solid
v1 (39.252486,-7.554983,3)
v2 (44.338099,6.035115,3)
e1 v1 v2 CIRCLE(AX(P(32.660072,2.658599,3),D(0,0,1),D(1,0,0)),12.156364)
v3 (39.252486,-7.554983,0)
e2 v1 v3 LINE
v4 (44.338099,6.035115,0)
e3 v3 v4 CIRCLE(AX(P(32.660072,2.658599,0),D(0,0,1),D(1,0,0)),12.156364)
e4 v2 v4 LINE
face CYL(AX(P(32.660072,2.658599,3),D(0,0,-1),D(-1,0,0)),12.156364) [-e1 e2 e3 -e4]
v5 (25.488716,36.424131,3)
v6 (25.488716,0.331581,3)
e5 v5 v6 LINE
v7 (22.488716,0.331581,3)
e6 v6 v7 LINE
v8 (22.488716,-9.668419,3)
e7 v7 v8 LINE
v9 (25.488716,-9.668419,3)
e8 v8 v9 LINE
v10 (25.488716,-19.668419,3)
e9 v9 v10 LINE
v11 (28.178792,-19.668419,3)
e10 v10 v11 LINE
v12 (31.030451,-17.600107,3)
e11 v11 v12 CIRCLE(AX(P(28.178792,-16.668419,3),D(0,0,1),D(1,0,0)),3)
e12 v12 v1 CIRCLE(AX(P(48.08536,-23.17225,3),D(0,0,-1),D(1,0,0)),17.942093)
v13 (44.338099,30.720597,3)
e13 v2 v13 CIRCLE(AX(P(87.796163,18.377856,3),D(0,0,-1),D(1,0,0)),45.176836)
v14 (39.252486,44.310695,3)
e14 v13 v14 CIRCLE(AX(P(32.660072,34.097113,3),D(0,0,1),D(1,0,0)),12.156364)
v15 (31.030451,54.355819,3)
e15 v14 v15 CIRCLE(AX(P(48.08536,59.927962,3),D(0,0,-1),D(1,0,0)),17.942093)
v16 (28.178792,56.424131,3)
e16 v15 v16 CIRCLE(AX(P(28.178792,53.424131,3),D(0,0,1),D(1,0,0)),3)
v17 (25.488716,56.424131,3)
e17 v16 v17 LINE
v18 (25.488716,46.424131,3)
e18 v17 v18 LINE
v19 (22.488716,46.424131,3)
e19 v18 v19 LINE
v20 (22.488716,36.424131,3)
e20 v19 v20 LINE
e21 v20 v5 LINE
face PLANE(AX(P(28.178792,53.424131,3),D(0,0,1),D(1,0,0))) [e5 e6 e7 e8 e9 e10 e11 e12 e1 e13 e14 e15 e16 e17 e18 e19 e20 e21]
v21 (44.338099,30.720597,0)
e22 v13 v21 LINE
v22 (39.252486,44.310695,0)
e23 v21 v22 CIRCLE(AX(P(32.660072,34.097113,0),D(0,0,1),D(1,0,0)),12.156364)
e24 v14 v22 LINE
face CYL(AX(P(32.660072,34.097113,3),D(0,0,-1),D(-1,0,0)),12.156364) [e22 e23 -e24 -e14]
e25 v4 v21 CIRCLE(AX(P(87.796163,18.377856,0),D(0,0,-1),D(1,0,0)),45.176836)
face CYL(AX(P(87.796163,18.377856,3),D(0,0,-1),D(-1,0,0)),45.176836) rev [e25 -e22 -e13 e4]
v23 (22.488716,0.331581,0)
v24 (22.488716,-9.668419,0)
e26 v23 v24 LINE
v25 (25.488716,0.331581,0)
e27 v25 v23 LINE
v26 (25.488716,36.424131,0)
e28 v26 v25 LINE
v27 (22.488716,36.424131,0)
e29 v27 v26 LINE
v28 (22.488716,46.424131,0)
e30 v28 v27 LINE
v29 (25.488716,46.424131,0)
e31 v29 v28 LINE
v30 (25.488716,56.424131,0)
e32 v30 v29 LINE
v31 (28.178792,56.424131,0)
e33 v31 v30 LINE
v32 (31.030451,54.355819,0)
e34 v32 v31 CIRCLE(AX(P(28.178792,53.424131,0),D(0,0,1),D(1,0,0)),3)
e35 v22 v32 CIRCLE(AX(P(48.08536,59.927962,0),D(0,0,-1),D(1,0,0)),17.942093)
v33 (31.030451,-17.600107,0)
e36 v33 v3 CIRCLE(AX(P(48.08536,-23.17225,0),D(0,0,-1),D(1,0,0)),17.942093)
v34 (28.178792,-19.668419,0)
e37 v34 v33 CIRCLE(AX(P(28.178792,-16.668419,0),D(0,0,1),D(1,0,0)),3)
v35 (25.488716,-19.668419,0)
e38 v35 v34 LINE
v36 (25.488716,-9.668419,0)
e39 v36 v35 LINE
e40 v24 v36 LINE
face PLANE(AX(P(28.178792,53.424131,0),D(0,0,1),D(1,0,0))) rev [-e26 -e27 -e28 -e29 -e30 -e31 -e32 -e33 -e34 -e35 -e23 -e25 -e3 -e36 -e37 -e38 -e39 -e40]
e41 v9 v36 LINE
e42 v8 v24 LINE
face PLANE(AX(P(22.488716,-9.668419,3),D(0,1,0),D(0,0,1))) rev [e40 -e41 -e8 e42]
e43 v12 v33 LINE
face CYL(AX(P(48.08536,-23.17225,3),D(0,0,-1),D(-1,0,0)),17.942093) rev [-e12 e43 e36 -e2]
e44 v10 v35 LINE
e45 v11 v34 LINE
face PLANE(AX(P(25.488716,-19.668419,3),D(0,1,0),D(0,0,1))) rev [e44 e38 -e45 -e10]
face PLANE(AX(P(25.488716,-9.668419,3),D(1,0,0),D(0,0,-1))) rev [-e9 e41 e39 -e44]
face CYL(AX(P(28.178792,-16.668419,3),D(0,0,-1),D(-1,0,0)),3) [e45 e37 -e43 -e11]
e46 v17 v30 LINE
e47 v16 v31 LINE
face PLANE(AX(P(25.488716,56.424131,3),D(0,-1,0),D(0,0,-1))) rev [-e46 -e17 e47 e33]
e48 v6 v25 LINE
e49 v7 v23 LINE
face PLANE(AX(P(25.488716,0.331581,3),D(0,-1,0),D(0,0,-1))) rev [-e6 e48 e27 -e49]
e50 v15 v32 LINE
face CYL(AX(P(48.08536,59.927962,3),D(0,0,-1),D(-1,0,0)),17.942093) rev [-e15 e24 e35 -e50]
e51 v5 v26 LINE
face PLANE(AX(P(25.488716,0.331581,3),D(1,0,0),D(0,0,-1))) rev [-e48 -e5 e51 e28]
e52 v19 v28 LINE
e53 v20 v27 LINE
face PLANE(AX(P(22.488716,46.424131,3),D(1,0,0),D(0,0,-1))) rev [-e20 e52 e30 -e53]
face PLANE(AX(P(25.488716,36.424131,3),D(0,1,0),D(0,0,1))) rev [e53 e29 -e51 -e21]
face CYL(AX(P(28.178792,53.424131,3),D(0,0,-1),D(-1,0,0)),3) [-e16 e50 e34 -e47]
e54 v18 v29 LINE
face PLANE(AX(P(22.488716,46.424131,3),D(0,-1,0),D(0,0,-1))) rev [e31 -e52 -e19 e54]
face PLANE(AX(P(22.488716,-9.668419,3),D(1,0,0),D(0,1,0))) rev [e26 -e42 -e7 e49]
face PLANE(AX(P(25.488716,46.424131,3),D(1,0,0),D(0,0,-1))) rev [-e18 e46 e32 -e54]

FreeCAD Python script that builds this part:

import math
import FreeCAD as App
import Part
import Sketcher
Q = App.Units.Quantity

doc = App.newDocument("Part")
body = doc.addObject("PartDesign::Body", "Body")

# Sketch on XY plane
sketch1 = body.newObject("Sketcher::SketchObject", "Sketch")
sketch1.AttachmentSupport = (doc.getObject("XY_Plane"), [""])
sketch1.MapMode = "FlatFace"
sketch1.addGeometry(Part.LineSegment(App.Vector(28.2, 56.4, 0), App.Vector(25.5, 56.4, 0)), False)
sketch1.addGeometry(Part.LineSegment(App.Vector(25.5, 56.4, 0), App.Vector(25.5, 46.4, 0)), False)
sketch1.addGeometry(Part.LineSegment(App.Vector(25.5, 46.4, 0), App.Vector(22.5, 46.4, 0)), False)
sketch1.addGeometry(Part.LineSegment(App.Vector(22.5, 46.4, 0), App.Vector(22.5, 36.4, 0)), False)
sketch1.addGeometry(Part.LineSegment(App.Vector(22.5, 36.4, 0), App.Vector(25.5, 36.4, 0)), False)
sketch1.addGeometry(Part.LineSegment(App.Vector(25.5, 36.4, 0), App.Vector(25.5, 0.3, 0)), False)
sketch1.addGeometry(Part.LineSegment(App.Vector(25.5, 0.3, 0), App.Vector(22.5, 0.3, 0)), False)
sketch1.addGeometry(Part.LineSegment(App.Vector(22.5, 0.3, 0), App.Vector(22.5, -9.7, 0)), False)
sketch1.addGeometry(Part.LineSegment(App.Vector(22.5, -9.7, 0), App.Vector(25.5, -9.7, 0)), False)
sketch1.addGeometry(Part.LineSegment(App.Vector(25.5, -9.7, 0), App.Vector(25.5, -19.7, 0)), False)
sketch1.addGeometry(Part.LineSegment(App.Vector(25.5, -19.7, 0), App.Vector(28.2, -19.7, 0)), False)
sketch1.addGeometry(Part.ArcOfCircle(Part.Circle(App.Vector(28.2, -16.7, 0), App.Vector(0, 0, 1), 3), math.radians(-90), math.radians(-18)), False)
sketch1.addGeometry(Part.ArcOfCircle(Part.Circle(App.Vector(48.1, -23.2, 0), App.Vector(0, 0, 1), 17.9), math.radians(119), math.radians(162)), False)
sketch1.addGeometry(Part.ArcOfCircle(Part.Circle(App.Vector(32.7, 2.7, 0), App.Vector(0, 0, 1), 12.2), math.radians(-57), math.radians(16)), False)
sketch1.addGeometry(Part.ArcOfCircle(Part.Circle(App.Vector(87.8, 18.4, 0), App.Vector(0, 0, 1), 45.2), math.radians(164), math.radians(196)), False)
sketch1.addGeometry(Part.ArcOfCircle(Part.Circle(App.Vector(32.7, 34.1, 0), App.Vector(0, 0, 1), 12.2), math.radians(-16), math.radians(57)), False)
sketch1.addGeometry(Part.ArcOfCircle(Part.Circle(App.Vector(48.1, 59.9, 0), App.Vector(0, 0, 1), 17.9), math.radians(-162), math.radians(-119)), False)
sketch1.addGeometry(Part.ArcOfCircle(Part.Circle(App.Vector(28.2, 53.4, 0), App.Vector(0, 0, 1), 3), math.radians(18), math.radians(90)), False)
sketch1.addConstraint(Sketcher.Constraint("Coincident", 0, 2, 1, 1))
sketch1.addConstraint(Sketcher.Constraint("Coincident", 1, 2, 2, 1))
sketch1.addConstraint(Sketcher.Constraint("Coincident", 2, 2, 3, 1))
sketch1.addConstraint(Sketcher.Constraint("Coincident", 3, 2, 4, 1))
sketch1.addConstraint(Sketcher.Constraint("Coincident", 4, 2, 5, 1))
sketch1.addConstraint(Sketcher.Constraint("Coincident", 5, 2, 6, 1))
sketch1.addConstraint(Sketcher.Constraint("Coincident", 6, 2, 7, 1))
sketch1.addConstraint(Sketcher.Constraint("Coincident", 7, 2, 8, 1))
sketch1.addConstraint(Sketcher.Constraint("Coincident", 8, 2, 9, 1))
sketch1.addConstraint(Sketcher.Constraint("Coincident", 9, 2, 10, 1))
sketch1.addConstraint(Sketcher.Constraint("Tangent", 10, 2, 11, 1))
sketch1.addConstraint(Sketcher.Constraint("Tangent", 11, 2, 12, 2))
sketch1.addConstraint(Sketcher.Constraint("Coincident", 12, 1, 13, 1))
sketch1.addConstraint(Sketcher.Constraint("Coincident", 13, 2, 14, 2))
sketch1.addConstraint(Sketcher.Constraint("Coincident", 14, 1, 15, 1))
sketch1.addConstraint(Sketcher.Constraint("Coincident", 15, 2, 16, 2))
sketch1.addConstraint(Sketcher.Constraint("Tangent", 16, 1, 17, 1))
sketch1.addConstraint(Sketcher.Constraint("Tangent", 17, 2, 0, 1))
sketch1.addConstraint(Sketcher.Constraint("Horizontal", 0))
sketch1.addConstraint(Sketcher.Constraint("Vertical", 1))
sketch1.addConstraint(Sketcher.Constraint("Horizontal", 2))
sketch1.addConstraint(Sketcher.Constraint("Vertical", 3))
sketch1.addConstraint(Sketcher.Constraint("Horizontal", 4))
sketch1.addConstraint(Sketcher.Constraint("Vertical", 5))
sketch1.addConstraint(Sketcher.Constraint("Horizontal", 6))
sketch1.addConstraint(Sketcher.Constraint("Vertical", 7))
sketch1.addConstraint(Sketcher.Constraint("Horizontal", 8))
sketch1.addConstraint(Sketcher.Constraint("Vertical", 9))
sketch1.addConstraint(Sketcher.Constraint("Horizontal", 10))
sketch1.addConstraint(Sketcher.Constraint("Equal", 13, 15))
sketch1.addConstraint(Sketcher.Constraint("Equal", 12, 16))
sketch1.addConstraint(Sketcher.Constraint("Equal", 11, 17))
sketch1.addConstraint(Sketcher.Constraint("Vertical", 13, 3, 15, 3))
sketch1.addConstraint(Sketcher.Constraint("Vertical", 12, 3, 16, 3))
sketch1.addConstraint(Sketcher.Constraint("Vertical", 11, 3, 17, 3))
sketch1.addConstraint(Sketcher.Constraint("Vertical", 1, 2, 4, 2))
sketch1.addConstraint(Sketcher.Constraint("Vertical", 3, 2, 6, 2))
sketch1.addConstraint(Sketcher.Constraint("Vertical", 5, 2, 8, 2))
sketch1.addConstraint(Sketcher.Constraint("Vertical", 13, 2, 14, 1))
sketch1.addConstraint(Sketcher.Constraint("Vertical", 12, 1, 15, 2))
sketch1.addConstraint(Sketcher.Constraint("Equal", 1, 3))
sketch1.addConstraint(Sketcher.Constraint("Equal", 3, 7))
sketch1.addConstraint(Sketcher.Constraint("Equal", 7, 9))
sketch1.addConstraint(Sketcher.Constraint("Radius", 11, Q("3 mm")))
sketch1.addConstraint(Sketcher.Constraint("DistanceX", 2, 2, 2, 1, Q("3 mm")))
sketch1.addConstraint(Sketcher.Constraint("DistanceY", 1, 2, 1, 1, Q("10 mm")))
sketch1.addConstraint(Sketcher.Constraint("Radius", 12, Q("17.942093 mm")))
sketch1.addConstraint(Sketcher.Constraint("Radius", 13, Q("12.156364 mm")))
sketch1.addConstraint(Sketcher.Constraint("Radius", 14, Q("45.176836 mm")))
sketch1.addConstraint(Sketcher.Constraint("DistanceY", 5, 2, 5, 1, Q("36.092551 mm")))
sketch1.addConstraint(Sketcher.Constraint("DistanceY", -1, 1, 13, 3, Q("2.658599 mm")))
sketch1.addConstraint(Sketcher.Constraint("DistanceX", -1, 1, 13, 2, Q("44.338099 mm")))
sketch1.addConstraint(Sketcher.Constraint("DistanceX", 0, 2, 0, 1, Q("2.690076 mm")))
sketch1.addConstraint(Sketcher.Constraint("DistanceY", 11, 3, -1, 1, Q("16.668419 mm")))
sketch1.addConstraint(Sketcher.Constraint("DistanceX", -1, 1, 12, 3, Q("48.08536 mm")))
sketch1.addConstraint(Sketcher.Constraint("DistanceY", 12, 3, -1, 1, Q("23.17225 mm")))
sketch1.addConstraint(Sketcher.Constraint("DistanceX", -1, 1, 13, 3, Q("32.660072 mm")))
pad1 = body.newObject("PartDesign::Pad", "Pad")
pad1.Profile = sketch1
pad1.Length = 3

doc.recompute()
